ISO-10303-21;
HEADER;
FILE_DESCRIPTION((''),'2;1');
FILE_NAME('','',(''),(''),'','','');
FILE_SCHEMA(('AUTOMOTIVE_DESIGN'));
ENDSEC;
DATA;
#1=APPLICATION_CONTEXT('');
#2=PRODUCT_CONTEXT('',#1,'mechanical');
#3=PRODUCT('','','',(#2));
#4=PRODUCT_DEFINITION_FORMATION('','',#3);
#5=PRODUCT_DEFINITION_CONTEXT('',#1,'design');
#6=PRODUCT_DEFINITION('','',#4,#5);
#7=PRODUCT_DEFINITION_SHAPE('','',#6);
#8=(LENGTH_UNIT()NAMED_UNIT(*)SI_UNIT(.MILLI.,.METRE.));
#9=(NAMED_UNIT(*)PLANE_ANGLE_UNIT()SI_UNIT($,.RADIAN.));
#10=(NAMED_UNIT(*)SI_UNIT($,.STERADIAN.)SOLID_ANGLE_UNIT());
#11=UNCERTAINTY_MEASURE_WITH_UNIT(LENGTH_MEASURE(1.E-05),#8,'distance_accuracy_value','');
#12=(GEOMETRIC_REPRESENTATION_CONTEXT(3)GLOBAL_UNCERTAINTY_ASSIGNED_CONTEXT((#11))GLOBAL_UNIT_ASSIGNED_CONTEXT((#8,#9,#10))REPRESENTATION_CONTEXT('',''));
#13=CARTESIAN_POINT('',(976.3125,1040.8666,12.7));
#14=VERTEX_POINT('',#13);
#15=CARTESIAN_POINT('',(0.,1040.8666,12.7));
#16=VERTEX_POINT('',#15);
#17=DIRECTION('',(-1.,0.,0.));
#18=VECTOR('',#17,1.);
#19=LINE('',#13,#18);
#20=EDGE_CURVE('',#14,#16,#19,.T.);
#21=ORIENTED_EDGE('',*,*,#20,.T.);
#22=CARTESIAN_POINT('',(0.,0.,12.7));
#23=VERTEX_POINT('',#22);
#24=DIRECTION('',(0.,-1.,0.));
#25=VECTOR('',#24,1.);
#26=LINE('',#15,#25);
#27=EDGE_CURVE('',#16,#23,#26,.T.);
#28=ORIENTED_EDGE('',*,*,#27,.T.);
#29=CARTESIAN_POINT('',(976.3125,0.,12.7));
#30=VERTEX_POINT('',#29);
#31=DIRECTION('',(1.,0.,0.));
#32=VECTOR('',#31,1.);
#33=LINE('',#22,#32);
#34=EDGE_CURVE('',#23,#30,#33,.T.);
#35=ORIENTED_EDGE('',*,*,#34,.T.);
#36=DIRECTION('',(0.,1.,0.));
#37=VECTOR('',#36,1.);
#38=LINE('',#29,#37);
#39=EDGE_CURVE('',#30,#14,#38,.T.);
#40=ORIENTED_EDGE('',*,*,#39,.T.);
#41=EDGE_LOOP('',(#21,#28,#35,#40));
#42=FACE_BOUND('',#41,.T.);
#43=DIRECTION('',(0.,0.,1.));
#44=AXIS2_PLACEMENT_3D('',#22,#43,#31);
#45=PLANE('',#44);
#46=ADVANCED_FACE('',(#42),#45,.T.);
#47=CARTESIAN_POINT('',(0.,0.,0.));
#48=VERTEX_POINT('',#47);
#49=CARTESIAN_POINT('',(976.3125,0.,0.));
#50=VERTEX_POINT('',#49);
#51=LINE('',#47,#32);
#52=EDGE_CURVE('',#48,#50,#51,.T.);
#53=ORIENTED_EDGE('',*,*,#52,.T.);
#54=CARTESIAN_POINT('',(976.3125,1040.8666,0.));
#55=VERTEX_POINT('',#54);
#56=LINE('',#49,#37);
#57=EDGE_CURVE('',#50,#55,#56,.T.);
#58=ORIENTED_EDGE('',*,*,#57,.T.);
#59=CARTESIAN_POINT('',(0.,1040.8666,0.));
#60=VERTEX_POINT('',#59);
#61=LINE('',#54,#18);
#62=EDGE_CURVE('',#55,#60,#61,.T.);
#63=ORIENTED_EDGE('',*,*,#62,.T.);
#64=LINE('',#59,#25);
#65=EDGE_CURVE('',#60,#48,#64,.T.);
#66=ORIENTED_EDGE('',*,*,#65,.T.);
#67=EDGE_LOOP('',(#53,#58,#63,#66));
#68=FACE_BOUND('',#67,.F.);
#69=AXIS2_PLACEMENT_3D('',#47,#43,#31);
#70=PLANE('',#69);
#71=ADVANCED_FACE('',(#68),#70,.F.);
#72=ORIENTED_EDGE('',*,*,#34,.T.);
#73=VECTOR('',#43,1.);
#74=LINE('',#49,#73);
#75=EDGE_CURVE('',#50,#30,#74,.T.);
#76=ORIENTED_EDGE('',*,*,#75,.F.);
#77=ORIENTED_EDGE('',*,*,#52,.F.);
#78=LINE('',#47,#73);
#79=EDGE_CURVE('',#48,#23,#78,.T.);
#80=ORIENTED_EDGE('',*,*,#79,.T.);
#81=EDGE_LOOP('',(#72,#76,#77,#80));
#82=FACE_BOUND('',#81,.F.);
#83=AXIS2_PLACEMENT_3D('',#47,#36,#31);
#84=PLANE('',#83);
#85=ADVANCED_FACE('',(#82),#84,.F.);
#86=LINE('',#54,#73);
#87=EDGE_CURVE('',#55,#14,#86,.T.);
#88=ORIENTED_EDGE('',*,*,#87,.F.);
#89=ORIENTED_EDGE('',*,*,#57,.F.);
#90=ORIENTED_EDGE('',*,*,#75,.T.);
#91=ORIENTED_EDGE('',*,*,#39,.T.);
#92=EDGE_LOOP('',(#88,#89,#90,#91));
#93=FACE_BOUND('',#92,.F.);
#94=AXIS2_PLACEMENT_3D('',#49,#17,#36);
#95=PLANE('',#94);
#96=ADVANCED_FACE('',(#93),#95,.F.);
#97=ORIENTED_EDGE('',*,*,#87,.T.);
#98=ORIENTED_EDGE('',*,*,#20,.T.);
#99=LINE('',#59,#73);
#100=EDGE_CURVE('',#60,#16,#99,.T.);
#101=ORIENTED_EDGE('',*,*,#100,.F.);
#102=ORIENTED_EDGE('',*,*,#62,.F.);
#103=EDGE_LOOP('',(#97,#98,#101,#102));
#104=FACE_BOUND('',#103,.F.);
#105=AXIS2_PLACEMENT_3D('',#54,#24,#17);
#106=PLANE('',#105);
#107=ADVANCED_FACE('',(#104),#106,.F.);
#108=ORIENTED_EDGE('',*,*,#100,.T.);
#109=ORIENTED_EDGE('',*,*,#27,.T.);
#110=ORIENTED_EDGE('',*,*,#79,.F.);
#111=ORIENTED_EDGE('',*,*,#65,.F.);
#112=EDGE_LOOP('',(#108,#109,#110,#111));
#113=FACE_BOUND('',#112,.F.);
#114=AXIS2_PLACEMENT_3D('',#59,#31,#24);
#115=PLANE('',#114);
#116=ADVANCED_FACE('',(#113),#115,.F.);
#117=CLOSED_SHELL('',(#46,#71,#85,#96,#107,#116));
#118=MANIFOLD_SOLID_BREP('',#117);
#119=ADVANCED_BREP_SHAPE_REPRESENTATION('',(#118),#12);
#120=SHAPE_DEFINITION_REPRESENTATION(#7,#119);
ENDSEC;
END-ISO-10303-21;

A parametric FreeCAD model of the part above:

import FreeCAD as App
import Part
import Sketcher
Q = App.Units.Quantity

doc = App.newDocument("Part")
params = doc.addObject("Spreadsheet::Sheet", "Params")
for row, (alias, value) in enumerate([
    ("sketch1_width", "38.4375 in"),
    ("sketch1_height", "40.979 in"),
    ("pad1_length", "0.5 in"),
], start=1):
    params.set(f"A{row}", alias)
    params.set(f"B{row}", "=" + value)
    params.setAlias(f"B{row}", alias)

body = doc.addObject("PartDesign::Body", "Body")

sketch1 = doc.addObject("Sketcher::SketchObject", "Sketch")
body.addObject(sketch1)
sketch1.AttachmentSupport = (doc.XY_Plane, [""])
sketch1.MapMode = "FlatFace"
sketch1.addGeometry(Part.LineSegment(App.Vector(0, 1041, 0), App.Vector(0, 0, 0)), False)
sketch1.addGeometry(Part.LineSegment(App.Vector(0, 0, 0), App.Vector(976, 0, 0)), False)
sketch1.addGeometry(Part.LineSegment(App.Vector(976, 0, 0), App.Vector(976, 1041, 0)), False)
sketch1.addGeometry(Part.LineSegment(App.Vector(976, 1041, 0), App.Vector(0, 1041, 0)), False)
sketch1.addConstraint(Sketcher.Constraint("Coincident", 0, 2, 1, 1))
sketch1.addConstraint(Sketcher.Constraint("Coincident", 1, 2, 2, 1))
sketch1.addConstraint(Sketcher.Constraint("Coincident", 2, 2, 3, 1))
sketch1.addConstraint(Sketcher.Constraint("Coincident", 3, 2, 0, 1))
sketch1.addConstraint(Sketcher.Constraint("Vertical", 0))
sketch1.addConstraint(Sketcher.Constraint("Horizontal", 1))
sketch1.addConstraint(Sketcher.Constraint("Vertical", 2))
sketch1.addConstraint(Sketcher.Constraint("Horizontal", 3))
sketch1.addConstraint(Sketcher.Constraint("Coincident", 0, 2, -1, 1))
sketch1.addConstraint(Sketcher.Constraint("DistanceX", 1, 1, 1, 2, Q("38.4375 in")))
sketch1.addConstraint(Sketcher.Constraint("DistanceY", 0, 2, 0, 1, Q("40.979 in")))
sketch1.setExpression("Constraints[9]", "Params.sketch1_width")
sketch1.setExpression("Constraints[10]", "Params.sketch1_height")
pad1 = doc.addObject("PartDesign::Pad", "Pad")
body.addObject(pad1)
pad1.Profile = sketch1
pad1.setExpression("Length", "Params.pad1_length")

doc.recompute()
